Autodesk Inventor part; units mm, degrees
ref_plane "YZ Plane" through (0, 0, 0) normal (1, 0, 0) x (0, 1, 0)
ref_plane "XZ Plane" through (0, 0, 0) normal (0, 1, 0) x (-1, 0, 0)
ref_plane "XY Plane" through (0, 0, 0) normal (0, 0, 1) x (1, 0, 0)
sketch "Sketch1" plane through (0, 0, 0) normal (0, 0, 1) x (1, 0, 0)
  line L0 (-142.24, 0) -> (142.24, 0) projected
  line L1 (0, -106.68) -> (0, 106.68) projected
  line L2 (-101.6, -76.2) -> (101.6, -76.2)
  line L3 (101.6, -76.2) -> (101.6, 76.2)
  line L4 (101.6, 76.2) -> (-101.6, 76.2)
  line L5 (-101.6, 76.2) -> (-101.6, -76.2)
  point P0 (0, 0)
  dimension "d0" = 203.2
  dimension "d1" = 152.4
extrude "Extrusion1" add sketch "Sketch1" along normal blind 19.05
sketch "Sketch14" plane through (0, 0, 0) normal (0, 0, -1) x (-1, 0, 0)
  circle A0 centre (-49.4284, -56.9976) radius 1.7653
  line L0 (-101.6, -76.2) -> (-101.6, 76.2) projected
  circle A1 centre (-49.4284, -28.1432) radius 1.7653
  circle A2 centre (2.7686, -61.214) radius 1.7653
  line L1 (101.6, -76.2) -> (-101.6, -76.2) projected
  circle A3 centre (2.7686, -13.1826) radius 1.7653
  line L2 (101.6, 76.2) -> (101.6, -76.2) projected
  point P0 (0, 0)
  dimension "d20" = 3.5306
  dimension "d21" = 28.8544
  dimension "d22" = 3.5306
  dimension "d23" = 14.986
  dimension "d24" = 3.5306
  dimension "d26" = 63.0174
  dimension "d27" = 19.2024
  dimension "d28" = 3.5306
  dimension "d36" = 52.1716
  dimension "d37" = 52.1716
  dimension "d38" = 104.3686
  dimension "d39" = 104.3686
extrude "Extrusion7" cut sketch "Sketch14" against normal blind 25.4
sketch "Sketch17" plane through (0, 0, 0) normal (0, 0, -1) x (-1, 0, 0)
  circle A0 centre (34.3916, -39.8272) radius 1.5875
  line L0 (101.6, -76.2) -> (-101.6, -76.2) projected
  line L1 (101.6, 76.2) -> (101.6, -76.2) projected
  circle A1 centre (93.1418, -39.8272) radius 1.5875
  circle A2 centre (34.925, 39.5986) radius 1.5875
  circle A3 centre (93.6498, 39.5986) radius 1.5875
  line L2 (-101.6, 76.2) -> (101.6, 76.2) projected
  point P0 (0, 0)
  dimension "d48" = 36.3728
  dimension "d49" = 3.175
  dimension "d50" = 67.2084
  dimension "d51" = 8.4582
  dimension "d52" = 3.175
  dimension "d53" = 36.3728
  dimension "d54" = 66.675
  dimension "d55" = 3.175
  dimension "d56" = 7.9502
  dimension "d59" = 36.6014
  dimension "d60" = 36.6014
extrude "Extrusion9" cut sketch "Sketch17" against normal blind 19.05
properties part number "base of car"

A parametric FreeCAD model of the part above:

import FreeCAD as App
import Part
import Sketcher
Q = App.Units.Quantity

doc = App.newDocument("Part")
body = doc.addObject("PartDesign::Body", "Body")

sketch1 = body.newObject("Sketcher::SketchObject", "Sketch")
sketch1.AttachmentSupport = (doc.getObject("XY_Plane"), [""])
sketch1.MapMode = "FlatFace"
sketch1.addGeometry([
    Part.LineSegment(App.Vector(-102, 76, 0), App.Vector(-102, -76, 0)),
    Part.LineSegment(App.Vector(-102, -76, 0), App.Vector(102, -76, 0)),
    Part.LineSegment(App.Vector(102, -76, 0), App.Vector(102, 76, 0)),
    Part.LineSegment(App.Vector(102, 76, 0), App.Vector(-102, 76, 0)),
], False)
sketch1.addConstraint([
    Sketcher.Constraint("Coincident", 0, 2, 1, 1),
    Sketcher.Constraint("Coincident", 1, 2, 2, 1),
    Sketcher.Constraint("Coincident", 2, 2, 3, 1),
    Sketcher.Constraint("Coincident", 3, 2, 0, 1),
    Sketcher.Constraint("Vertical", 0),
    Sketcher.Constraint("Horizontal", 1),
    Sketcher.Constraint("Vertical", 2),
    Sketcher.Constraint("Horizontal", 3),
    Sketcher.Constraint("Symmetric", 0, 2, 2, 2, -1, 1),
    Sketcher.Constraint("DistanceX", 1, 1, 1, 2, Q("8 in")),
    Sketcher.Constraint("DistanceY", 0, 2, 0, 1, Q("6 in")),
])
pad1 = body.newObject("PartDesign::Pad", "Pad")
pad1.Profile = sketch1
pad1.Length = Q("0.75 in")

sketch2 = body.newObject("Sketcher::SketchObject", "Sketch001")
sketch2.AttachmentSupport = (doc.getObject("XY_Plane"), [""])
sketch2.MapMode = "FlatFace"
sketch2.addGeometry([
    Part.Circle(App.Vector(49.4, -57, 0), App.Vector(0, 0, 1), 1.8),
    Part.Circle(App.Vector(49.4, -28.1, 0), App.Vector(0, 0, 1), 1.8),
    Part.Circle(App.Vector(-2.8, -61.2, 0), App.Vector(0, 0, 1), 1.8),
    Part.Circle(App.Vector(-2.8, -13.2, 0), App.Vector(0, 0, 1), 1.8),
], False)
sketch2.addConstraint([
    Sketcher.Constraint("Equal", 0, 1),
    Sketcher.Constraint("Equal", 1, 2),
    Sketcher.Constraint("Equal", 2, 3),
    Sketcher.Constraint("Vertical", 0, 3, 1, 3),
    Sketcher.Constraint("Vertical", 2, 3, 3, 3),
    Sketcher.Constraint("Diameter", 0, Q("0.139 in")),
    Sketcher.Constraint("DistanceY", 0, 3, 1, 3, Q("1.136 in")),
    Sketcher.Constraint("DistanceY", 2, 3, -1, 1, Q("2.41 in")),
    Sketcher.Constraint("DistanceX", -1, 1, 0, 3, Q("1.946 in")),
    Sketcher.Constraint("DistanceY", 0, 3, -1, 1, Q("2.244 in")),
    Sketcher.Constraint("DistanceX", 2, 3, -1, 1, Q("0.109 in")),
    Sketcher.Constraint("DistanceY", 3, 3, -1, 1, Q("0.519 in")),
])
pocket1 = body.newObject("PartDesign::Pocket", "Pocket")
pocket1.Profile = sketch2
pocket1.Length = Q("1 in")
pocket1.Reversed = True

sketch3 = body.newObject("Sketcher::SketchObject", "Sketch002")
sketch3.AttachmentSupport = (doc.getObject("XY_Plane"), [""])
sketch3.MapMode = "FlatFace"
sketch3.addGeometry([
    Part.Circle(App.Vector(-34.4, -39.8, 0), App.Vector(0, 0, 1), 1.6),
    Part.Circle(App.Vector(-93.1, -39.8, 0), App.Vector(0, 0, 1), 1.6),
    Part.Circle(App.Vector(-34.9, 39.6, 0), App.Vector(0, 0, 1), 1.6),
    Part.Circle(App.Vector(-93.6, 39.6, 0), App.Vector(0, 0, 1), 1.6),
], False)
sketch3.addConstraint([
    Sketcher.Constraint("Equal", 0, 1),
    Sketcher.Constraint("Equal", 1, 2),
    Sketcher.Constraint("Equal", 2, 3),
    Sketcher.Constraint("Horizontal", 0, 3, 1, 3),
    Sketcher.Constraint("Horizontal", 2, 3, 3, 3),
    Sketcher.Constraint("Diameter", 0, Q("0.125 in")),
    Sketcher.Constraint("DistanceX", 3, 3, 1, 3, Q("0.02 in")),
    Sketcher.Constraint("DistanceX", 0, 3, -1, 1, Q("1.354 in")),
    Sketcher.Constraint("DistanceY", 0, 3, -1, 1, Q("1.568 in")),
    Sketcher.Constraint("DistanceX", 1, 3, -1, 1, Q("3.667 in")),
    Sketcher.Constraint("DistanceX", 2, 3, -1, 1, Q("1.375 in")),
    Sketcher.Constraint("DistanceY", -1, 1, 2, 3, Q("1.559 in")),
])
pocket2 = body.newObject("PartDesign::Pocket", "Pocket001")
pocket2.Profile = sketch3
pocket2.Length = Q("0.75 in")
pocket2.Reversed = True

doc.recompute()
